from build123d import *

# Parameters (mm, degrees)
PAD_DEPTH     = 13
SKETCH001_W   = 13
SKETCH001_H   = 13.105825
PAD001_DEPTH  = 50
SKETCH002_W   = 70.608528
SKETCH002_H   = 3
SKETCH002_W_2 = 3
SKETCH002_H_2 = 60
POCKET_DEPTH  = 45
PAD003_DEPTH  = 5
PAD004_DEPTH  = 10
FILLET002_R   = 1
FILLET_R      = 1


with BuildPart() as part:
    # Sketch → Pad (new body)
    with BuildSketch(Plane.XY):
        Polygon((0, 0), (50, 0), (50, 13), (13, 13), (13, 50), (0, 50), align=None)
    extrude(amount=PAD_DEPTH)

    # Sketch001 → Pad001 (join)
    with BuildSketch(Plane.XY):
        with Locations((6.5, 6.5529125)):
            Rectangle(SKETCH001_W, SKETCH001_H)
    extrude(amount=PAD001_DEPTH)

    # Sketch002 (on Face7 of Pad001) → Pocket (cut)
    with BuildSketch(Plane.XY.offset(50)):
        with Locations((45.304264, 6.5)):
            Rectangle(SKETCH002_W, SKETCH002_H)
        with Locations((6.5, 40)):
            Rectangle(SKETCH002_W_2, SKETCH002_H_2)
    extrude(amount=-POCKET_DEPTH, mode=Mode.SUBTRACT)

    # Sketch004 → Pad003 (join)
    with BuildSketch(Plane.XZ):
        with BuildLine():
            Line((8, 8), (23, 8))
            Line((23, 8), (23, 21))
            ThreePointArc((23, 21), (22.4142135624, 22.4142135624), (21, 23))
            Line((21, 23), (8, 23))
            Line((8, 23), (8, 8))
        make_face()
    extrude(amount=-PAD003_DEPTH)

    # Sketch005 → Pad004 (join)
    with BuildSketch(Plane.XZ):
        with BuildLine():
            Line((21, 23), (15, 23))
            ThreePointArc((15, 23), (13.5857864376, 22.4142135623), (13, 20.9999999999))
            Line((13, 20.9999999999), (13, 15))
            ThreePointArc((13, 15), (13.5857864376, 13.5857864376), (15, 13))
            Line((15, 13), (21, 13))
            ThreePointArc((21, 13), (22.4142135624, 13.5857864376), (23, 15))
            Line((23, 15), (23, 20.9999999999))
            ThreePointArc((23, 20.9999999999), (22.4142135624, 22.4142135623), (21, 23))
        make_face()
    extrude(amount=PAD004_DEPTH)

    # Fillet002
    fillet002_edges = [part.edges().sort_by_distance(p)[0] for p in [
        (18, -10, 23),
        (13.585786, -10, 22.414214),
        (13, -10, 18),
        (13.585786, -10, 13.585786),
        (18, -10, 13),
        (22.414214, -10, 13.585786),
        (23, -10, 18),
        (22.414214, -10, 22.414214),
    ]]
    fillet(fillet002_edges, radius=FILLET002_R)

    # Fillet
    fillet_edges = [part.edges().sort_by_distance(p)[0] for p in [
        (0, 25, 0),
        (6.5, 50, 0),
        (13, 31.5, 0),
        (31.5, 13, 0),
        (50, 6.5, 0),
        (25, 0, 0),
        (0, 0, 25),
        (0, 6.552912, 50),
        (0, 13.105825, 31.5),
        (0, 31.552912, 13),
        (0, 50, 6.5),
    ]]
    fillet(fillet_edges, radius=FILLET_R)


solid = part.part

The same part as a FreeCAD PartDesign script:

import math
import FreeCAD as App
import Part
import Sketcher

V = App.Vector
Q = App.Units.Quantity


def edges_at(feature, points):
    """Names of the edges that pass closest to the given points."""
    edges = feature.Shape.Edges
    near = lambda p: min(range(len(edges)), key=lambda i: edges[i].distToShape(Part.Vertex(*p))[0])
    return sorted({f"Edge{near(p) + 1}" for p in points})


def add_polygon(sketch, points):
    """Adds a closed chain of lines whose ends are joined by coincident constraints."""
    first, n = sketch.GeometryCount, len(points)
    for a, b in zip(points, points[1:] + points[:1]):
        sketch.addGeometry(Part.LineSegment(App.Vector(*a, 0), App.Vector(*b, 0)), False)
    for i in range(n):
        sketch.addConstraint(Sketcher.Constraint("Coincident", first + i, 2, first + (i + 1) % n, 1))

doc = App.newDocument("Part")
body = doc.addObject("PartDesign::Body", "Body")

# Sketch on XY plane
sketch1 = doc.addObject("Sketcher::SketchObject", "Sketch")
body.addObject(sketch1)
sketch1.AttachmentSupport = (doc.XY_Plane, [""])
sketch1.MapMode = "FlatFace"
add_polygon(sketch1, [(0, 0), (50, 0), (50, 13), (13, 13), (13, 50), (0, 50)])  # lines 0-5
sketch1.addConstraint([
    Sketcher.Constraint("Horizontal", 0),
    Sketcher.Constraint("Vertical", 1),
    Sketcher.Constraint("Horizontal", 2),
    Sketcher.Constraint("Vertical", 3),
    Sketcher.Constraint("Horizontal", 4),
    Sketcher.Constraint("Vertical", 5),
    Sketcher.Constraint("Coincident", 5, 2, -1, 1),
    Sketcher.Constraint("Equal", 4, 1),
    Sketcher.Constraint("Equal", 2, 3),
    Sketcher.Constraint("DistanceX", 0, 1, 0, 2, Q("50 mm")),
    Sketcher.Constraint("DistanceX", 2, 2, 2, 1, Q("37 mm")),
])
pad1 = doc.addObject("PartDesign::Pad", "Pad")
body.addObject(pad1)
pad1.Profile = sketch1
pad1.Length = 13

# Sketch on XY plane
sketch2 = doc.addObject("Sketcher::SketchObject", "Sketch001")
body.addObject(sketch2)
sketch2.AttachmentSupport = (doc.XY_Plane, [""])
sketch2.MapMode = "FlatFace"
add_polygon(sketch2, [(0, 13), (0, 0), (13, 0), (13, 13)])  # lines 0-3
sketch2.addConstraint([
    Sketcher.Constraint("Vertical", 0),
    Sketcher.Constraint("Horizontal", 1),
    Sketcher.Constraint("Vertical", 2),
    Sketcher.Constraint("Horizontal", 3),
    Sketcher.Constraint("Coincident", 0, 2, -1, 1),
    Sketcher.Constraint("DistanceX", 1, 1, 1, 2, Q("13 mm")),
    Sketcher.Constraint("DistanceY", 0, 2, 0, 1, Q("13.105825 mm")),
])
pad2 = doc.addObject("PartDesign::Pad", "Pad001")
body.addObject(pad2)
pad2.Profile = sketch2
pad2.Length = 50

# Sketch on XY plane
sketch3 = doc.addObject("Sketcher::SketchObject", "Sketch002")
body.addObject(sketch3)
sketch3.AttachmentSupport = (doc.XY_Plane, [""])
sketch3.MapMode = "FlatFace"
sketch3.AttachmentOffset = App.Placement(V(0, 0, 50), App.Rotation())
add_polygon(sketch3, [(10, 8), (10, 5), (80.6, 5), (80.6, 8)])  # lines 0-3
add_polygon(sketch3, [(5, 70), (5, 10), (8, 10), (8, 70)])  # lines 4-7
sketch3.addConstraint([
    Sketcher.Constraint("Vertical", 0),
    Sketcher.Constraint("Horizontal", 1),
    Sketcher.Constraint("Vertical", 2),
    Sketcher.Constraint("Horizontal", 3),
    Sketcher.Constraint("Vertical", 4),
    Sketcher.Constraint("Horizontal", 5),
    Sketcher.Constraint("Vertical", 6),
    Sketcher.Constraint("Horizontal", 7),
    Sketcher.Constraint("Equal", 7, 0),
    Sketcher.Constraint("DistanceX", 5, 1, 5, 2, Q("3 mm")),
    Sketcher.Constraint("DistanceY", 4, 2, 4, 1, Q("60 mm")),
    Sketcher.Constraint("DistanceX", -1, 1, 0, 2, Q("10 mm")),
    Sketcher.Constraint("DistanceY", -1, 1, 0, 2, Q("5 mm")),
    Sketcher.Constraint("DistanceX", -1, 1, 4, 2, Q("5 mm")),
    Sketcher.Constraint("DistanceY", -1, 1, 4, 2, Q("10 mm")),
    Sketcher.Constraint("DistanceX", 1, 1, 1, 2, Q("70.608528 mm")),
])
pocket1 = doc.addObject("PartDesign::Pocket", "Pocket")
body.addObject(pocket1)
pocket1.Profile = sketch3
pocket1.Length = 45

# Sketch on XZ plane
sketch4 = doc.addObject("Sketcher::SketchObject", "Sketch003")
body.addObject(sketch4)
sketch4.AttachmentSupport = (doc.XZ_Plane, [""])
sketch4.MapMode = "FlatFace"
sketch4.addGeometry([
    Part.LineSegment(V(8, 8, 0), V(23, 8, 0)),  # 0
    Part.LineSegment(V(23, 8, 0), V(23, 21, 0)),  # 1
    Part.ArcOfCircle(Part.Circle(V(21, 21, 0), V(0, 0, 1), 2), math.radians(0), math.radians(90)),  # 2
    Part.LineSegment(V(21, 23, 0), V(8, 23, 0)),  # 3
    Part.LineSegment(V(8, 23, 0), V(8, 8, 0)),  # 4
], False)
sketch4.addConstraint([
    Sketcher.Constraint("Coincident", 0, 2, 1, 1),
    Sketcher.Constraint("Tangent", 1, 2, 2, 1),
    Sketcher.Constraint("Tangent", 2, 2, 3, 1),
    Sketcher.Constraint("Coincident", 3, 2, 4, 1),
    Sketcher.Constraint("Coincident", 4, 2, 0, 1),
    Sketcher.Constraint("Horizontal", 0),
    Sketcher.Constraint("Vertical", 1),
    Sketcher.Constraint("Horizontal", 3),
    Sketcher.Constraint("Vertical", 4),
    Sketcher.Constraint("Equal", 3, 1),
    Sketcher.Constraint("Radius", 2, Q("2 mm")),
    Sketcher.Constraint("DistanceX", 0, 1, 0, 2, Q("15 mm")),
    Sketcher.Constraint("DistanceX", -1, 1, 2, 3, Q("21 mm")),
    Sketcher.Constraint("DistanceY", -1, 1, 2, 3, Q("21 mm")),
])
pad3 = doc.addObject("PartDesign::Pad", "Pad002")
body.addObject(pad3)
pad3.Profile = sketch4
pad3.Length = 5
pad3.Reversed = True

# Sketch on XZ plane
sketch5 = doc.addObject("Sketcher::SketchObject", "Sketch004")
body.addObject(sketch5)
sketch5.AttachmentSupport = (doc.XZ_Plane, [""])
sketch5.MapMode = "FlatFace"
sketch5.addGeometry([
    Part.LineSegment(V(21, 23, 0), V(15, 23, 0)),  # 0
    Part.ArcOfCircle(Part.Circle(V(15, 21, 0), V(0, 0, 1), 2), math.radians(90), math.radians(180)),  # 1
    Part.LineSegment(V(13, 21, 0), V(13, 15, 0)),  # 2
    Part.ArcOfCircle(Part.Circle(V(15, 15, 0), V(0, 0, 1), 2), math.radians(180), math.radians(270)),  # 3
    Part.LineSegment(V(15, 13, 0), V(21, 13, 0)),  # 4
    Part.ArcOfCircle(Part.Circle(V(21, 15, 0), V(0, 0, 1), 2), math.radians(-90), math.radians(0)),  # 5
    Part.LineSegment(V(23, 15, 0), V(23, 21, 0)),  # 6
    Part.ArcOfCircle(Part.Circle(V(21, 21, 0), V(0, 0, 1), 2), math.radians(0), math.radians(90)),  # 7
], False)
sketch5.addConstraint([
    Sketcher.Constraint("Tangent", 0, 2, 1, 1),
    Sketcher.Constraint("Tangent", 1, 2, 2, 1),
    Sketcher.Constraint("Tangent", 2, 2, 3, 1),
    Sketcher.Constraint("Tangent", 3, 2, 4, 1),
    Sketcher.Constraint("Tangent", 4, 2, 5, 1),
    Sketcher.Constraint("Tangent", 5, 2, 6, 1),
    Sketcher.Constraint("Tangent", 6, 2, 7, 1),
    Sketcher.Constraint("Tangent", 7, 2, 0, 1),
    Sketcher.Constraint("Horizontal", 0),
    Sketcher.Constraint("Vertical", 2),
    Sketcher.Constraint("Horizontal", 4),
    Sketcher.Constraint("Vertical", 6),
    Sketcher.Constraint("Equal", 1, 3),
    Sketcher.Constraint("Equal", 3, 5),
    Sketcher.Constraint("Equal", 5, 7),
    Sketcher.Constraint("Equal", 4, 2),
    Sketcher.Constraint("Radius", 1, Q("2 mm")),
    Sketcher.Constraint("DistanceX", 0, 2, 0, 1, Q("6 mm")),
    Sketcher.Constraint("DistanceX", -1, 1, 1, 3, Q("15 mm")),
    Sketcher.Constraint("DistanceY", -1, 1, 1, 3, Q("21 mm")),
])
pad4 = doc.addObject("PartDesign::Pad", "Pad003")
body.addObject(pad4)
pad4.Profile = sketch5
pad4.Length = 10
doc.recompute()

fillet = doc.addObject("PartDesign::Fillet", "Fillet")
body.addObject(fillet)
fillet.Base = (pad4, edges_at(pad4, [
    (18, -10, 23),
    (13.586, -10, 22.414),
    (13, -10, 18),
    (13.586, -10, 13.586),
    (18, -10, 13),
    (22.414, -10, 13.586),
    (23, -10, 18),
    (22.414, -10, 22.414),
]))
fillet.Radius = 1
doc.recompute()

fillet2 = doc.addObject("PartDesign::Fillet", "Fillet001")
body.addObject(fillet2)
fillet2.Base = (fillet, edges_at(fillet, [
    (0, 25, 0),
    (6.5, 50, 0),
    (13, 31.5, 0),
    (31.5, 13, 0),
    (50, 6.5, 0),
    (25, 0, 0),
    (0, 0, 25),
    (0, 6.553, 50),
    (0, 13.106, 31.5),
    (0, 31.553, 13),
    (0, 50, 6.5),
]))
fillet2.Radius = 1

doc.recompute()
